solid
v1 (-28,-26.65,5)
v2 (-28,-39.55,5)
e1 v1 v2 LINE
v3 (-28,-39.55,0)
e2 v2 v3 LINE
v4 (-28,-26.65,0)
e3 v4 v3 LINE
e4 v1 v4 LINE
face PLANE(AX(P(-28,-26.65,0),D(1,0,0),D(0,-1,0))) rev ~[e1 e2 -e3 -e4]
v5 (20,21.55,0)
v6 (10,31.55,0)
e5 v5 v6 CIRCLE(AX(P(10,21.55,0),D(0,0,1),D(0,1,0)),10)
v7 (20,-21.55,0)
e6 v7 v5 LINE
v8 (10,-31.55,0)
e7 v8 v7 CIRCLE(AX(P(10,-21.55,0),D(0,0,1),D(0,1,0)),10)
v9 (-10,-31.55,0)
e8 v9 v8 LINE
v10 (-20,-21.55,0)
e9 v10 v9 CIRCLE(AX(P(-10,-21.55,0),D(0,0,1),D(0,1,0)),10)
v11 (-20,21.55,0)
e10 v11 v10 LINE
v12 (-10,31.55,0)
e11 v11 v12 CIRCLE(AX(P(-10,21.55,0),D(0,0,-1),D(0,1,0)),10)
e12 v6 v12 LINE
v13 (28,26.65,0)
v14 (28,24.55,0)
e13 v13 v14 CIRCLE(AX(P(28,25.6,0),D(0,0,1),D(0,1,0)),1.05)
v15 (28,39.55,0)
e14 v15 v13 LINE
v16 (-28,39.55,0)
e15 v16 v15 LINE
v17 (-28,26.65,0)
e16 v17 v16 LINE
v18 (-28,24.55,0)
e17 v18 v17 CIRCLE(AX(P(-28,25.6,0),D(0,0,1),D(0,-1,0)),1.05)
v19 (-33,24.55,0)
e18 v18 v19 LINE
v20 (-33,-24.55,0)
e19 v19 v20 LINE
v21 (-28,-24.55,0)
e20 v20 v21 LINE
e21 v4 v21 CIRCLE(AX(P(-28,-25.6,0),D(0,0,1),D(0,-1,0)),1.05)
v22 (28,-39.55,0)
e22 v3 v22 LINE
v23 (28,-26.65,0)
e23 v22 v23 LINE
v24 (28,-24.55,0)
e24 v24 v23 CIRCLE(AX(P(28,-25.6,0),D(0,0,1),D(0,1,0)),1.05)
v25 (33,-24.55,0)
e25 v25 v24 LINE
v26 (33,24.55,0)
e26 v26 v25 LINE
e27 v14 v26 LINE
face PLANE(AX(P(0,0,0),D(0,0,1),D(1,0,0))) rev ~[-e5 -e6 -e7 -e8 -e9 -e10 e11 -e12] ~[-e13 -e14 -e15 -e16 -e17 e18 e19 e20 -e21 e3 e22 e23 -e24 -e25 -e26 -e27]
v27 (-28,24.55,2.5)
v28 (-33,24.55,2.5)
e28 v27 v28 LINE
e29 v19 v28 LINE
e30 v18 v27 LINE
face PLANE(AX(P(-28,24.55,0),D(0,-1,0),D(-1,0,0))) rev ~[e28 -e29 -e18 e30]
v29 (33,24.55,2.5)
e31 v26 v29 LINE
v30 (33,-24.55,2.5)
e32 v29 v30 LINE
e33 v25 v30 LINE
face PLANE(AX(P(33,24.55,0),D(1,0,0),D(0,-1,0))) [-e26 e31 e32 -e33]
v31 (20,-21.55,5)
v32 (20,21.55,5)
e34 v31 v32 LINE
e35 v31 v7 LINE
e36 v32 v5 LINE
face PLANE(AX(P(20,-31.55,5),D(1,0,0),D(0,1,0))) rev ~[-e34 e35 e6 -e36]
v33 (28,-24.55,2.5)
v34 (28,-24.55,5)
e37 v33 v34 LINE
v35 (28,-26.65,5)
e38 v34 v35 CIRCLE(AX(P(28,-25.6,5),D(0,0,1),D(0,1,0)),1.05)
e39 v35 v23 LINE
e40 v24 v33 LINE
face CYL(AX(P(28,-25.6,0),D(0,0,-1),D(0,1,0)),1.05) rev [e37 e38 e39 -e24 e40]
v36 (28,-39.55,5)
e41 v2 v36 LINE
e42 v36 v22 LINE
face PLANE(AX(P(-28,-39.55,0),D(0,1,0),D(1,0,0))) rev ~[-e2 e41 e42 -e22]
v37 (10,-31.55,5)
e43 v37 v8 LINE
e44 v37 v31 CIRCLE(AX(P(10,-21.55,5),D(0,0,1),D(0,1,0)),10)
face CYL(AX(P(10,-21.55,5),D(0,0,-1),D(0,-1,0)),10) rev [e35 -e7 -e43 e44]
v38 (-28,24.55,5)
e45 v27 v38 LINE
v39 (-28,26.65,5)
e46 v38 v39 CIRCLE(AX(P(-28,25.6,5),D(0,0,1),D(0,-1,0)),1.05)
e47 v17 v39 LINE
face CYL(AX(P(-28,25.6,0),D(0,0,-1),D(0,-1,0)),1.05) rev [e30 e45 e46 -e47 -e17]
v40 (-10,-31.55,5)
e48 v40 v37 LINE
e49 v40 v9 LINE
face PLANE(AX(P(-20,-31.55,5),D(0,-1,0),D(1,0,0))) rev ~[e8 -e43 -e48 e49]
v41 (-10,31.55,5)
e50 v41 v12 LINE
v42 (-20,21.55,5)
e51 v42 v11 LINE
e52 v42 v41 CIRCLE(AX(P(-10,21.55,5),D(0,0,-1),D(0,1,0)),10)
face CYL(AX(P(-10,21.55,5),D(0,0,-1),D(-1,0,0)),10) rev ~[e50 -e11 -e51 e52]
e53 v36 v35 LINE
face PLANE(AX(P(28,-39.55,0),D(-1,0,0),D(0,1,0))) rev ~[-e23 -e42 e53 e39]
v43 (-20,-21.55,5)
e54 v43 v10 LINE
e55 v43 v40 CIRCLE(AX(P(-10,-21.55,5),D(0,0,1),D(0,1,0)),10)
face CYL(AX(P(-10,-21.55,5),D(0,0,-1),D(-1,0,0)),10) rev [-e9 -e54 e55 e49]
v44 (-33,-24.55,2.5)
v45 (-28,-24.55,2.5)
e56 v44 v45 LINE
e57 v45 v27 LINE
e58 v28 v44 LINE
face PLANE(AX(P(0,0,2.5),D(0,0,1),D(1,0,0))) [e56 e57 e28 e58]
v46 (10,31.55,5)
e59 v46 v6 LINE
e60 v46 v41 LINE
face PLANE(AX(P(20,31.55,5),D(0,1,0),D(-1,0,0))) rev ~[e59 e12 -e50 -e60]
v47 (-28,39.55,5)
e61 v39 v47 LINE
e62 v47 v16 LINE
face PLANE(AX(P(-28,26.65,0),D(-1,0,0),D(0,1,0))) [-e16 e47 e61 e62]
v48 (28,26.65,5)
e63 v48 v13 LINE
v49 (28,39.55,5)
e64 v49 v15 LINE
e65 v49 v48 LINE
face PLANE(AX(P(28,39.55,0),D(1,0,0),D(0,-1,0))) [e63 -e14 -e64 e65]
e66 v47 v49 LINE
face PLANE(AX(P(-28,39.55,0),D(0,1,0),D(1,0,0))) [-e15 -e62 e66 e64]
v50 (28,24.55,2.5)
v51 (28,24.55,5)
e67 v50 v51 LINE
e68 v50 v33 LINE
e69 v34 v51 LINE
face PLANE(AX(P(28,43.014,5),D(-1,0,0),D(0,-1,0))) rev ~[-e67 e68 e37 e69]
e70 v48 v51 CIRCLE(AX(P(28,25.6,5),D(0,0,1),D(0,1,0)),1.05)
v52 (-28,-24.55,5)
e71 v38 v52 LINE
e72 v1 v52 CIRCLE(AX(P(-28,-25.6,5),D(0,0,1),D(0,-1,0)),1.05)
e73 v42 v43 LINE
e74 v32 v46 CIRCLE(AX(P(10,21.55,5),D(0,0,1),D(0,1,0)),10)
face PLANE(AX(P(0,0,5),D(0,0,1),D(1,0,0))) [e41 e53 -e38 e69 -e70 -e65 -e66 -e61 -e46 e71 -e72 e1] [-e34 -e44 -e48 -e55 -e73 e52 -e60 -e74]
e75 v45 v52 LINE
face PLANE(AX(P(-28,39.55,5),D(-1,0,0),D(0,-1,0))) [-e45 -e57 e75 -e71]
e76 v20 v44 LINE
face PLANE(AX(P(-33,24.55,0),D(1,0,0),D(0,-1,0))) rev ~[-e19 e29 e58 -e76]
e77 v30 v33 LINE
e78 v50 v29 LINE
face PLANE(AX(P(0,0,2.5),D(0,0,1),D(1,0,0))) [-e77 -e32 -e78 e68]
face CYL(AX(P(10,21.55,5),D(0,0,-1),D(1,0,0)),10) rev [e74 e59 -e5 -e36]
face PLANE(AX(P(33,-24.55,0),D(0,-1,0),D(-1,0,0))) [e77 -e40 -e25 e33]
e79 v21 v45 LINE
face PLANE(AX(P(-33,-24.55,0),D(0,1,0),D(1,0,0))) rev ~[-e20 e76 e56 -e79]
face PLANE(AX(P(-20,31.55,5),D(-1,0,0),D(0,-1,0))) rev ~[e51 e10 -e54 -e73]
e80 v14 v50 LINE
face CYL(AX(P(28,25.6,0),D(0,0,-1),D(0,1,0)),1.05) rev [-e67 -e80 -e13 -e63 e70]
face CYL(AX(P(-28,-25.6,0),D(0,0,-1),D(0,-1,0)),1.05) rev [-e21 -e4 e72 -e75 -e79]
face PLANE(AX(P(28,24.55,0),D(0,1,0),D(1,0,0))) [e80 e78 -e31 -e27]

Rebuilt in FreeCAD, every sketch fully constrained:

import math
import FreeCAD as App
import Part
import Sketcher

V = App.Vector
Q = App.Units.Quantity


def edges_at(feature, points):
    """Names of the edges that pass closest to the given points."""
    edges = feature.Shape.Edges
    near = lambda p: min(range(len(edges)), key=lambda i: edges[i].distToShape(Part.Vertex(*p))[0])
    return sorted({f"Edge{near(p) + 1}" for p in points})


def add_polygon(sketch, points):
    """Adds a closed chain of lines whose ends are joined by coincident constraints."""
    first, n = sketch.GeometryCount, len(points)
    for a, b in zip(points, points[1:] + points[:1]):
        sketch.addGeometry(Part.LineSegment(App.Vector(*a, 0), App.Vector(*b, 0)), False)
    for i in range(n):
        sketch.addConstraint(Sketcher.Constraint("Coincident", first + i, 2, first + (i + 1) % n, 1))

doc = App.newDocument("Part")
body = doc.addObject("PartDesign::Body", "Body")

sketch1 = body.newObject("Sketcher::SketchObject", "Sketch")
sketch1.AttachmentSupport = (doc.getObject("XY_Plane"), [""])
sketch1.MapMode = "FlatFace"
sketch1.addGeometry([
    Part.LineSegment(V(-28, 39.5, 0), V(-28, 26.6, 0)),
    Part.ArcOfCircle(Part.Circle(V(-28, 25.6, 0), V(0, 0, 1), 1.1), math.radians(-90), math.radians(90)),
    Part.LineSegment(V(-28, 24.6, 0), V(-33, 24.6, 0)),
    Part.LineSegment(V(-33, 24.6, 0), V(-33, -24.6, 0)),
    Part.LineSegment(V(-33, -24.6, 0), V(-28, -24.6, 0)),
    Part.ArcOfCircle(Part.Circle(V(-28, -25.6, 0), V(0, 0, 1), 1), math.radians(-90), math.radians(90)),
    Part.LineSegment(V(-28, -26.6, 0), V(-28, -39.5, 0)),
    Part.LineSegment(V(-28, -39.5, 0), V(28, -39.5, 0)),
    Part.LineSegment(V(28, -39.5, 0), V(28, -26.6, 0)),
    Part.ArcOfCircle(Part.Circle(V(28, -25.6, 0), V(0, 0, 1), 1.1), math.radians(90), math.radians(270)),
    Part.LineSegment(V(28, -24.6, 0), V(33, -24.6, 0)),
    Part.LineSegment(V(33, -24.6, 0), V(33, 24.6, 0)),
    Part.LineSegment(V(33, 24.6, 0), V(28, 24.6, 0)),
    Part.ArcOfCircle(Part.Circle(V(28, 25.6, 0), V(0, 0, 1), 1), math.radians(90), math.radians(270)),
    Part.LineSegment(V(28, 26.6, 0), V(28, 39.5, 0)),
    Part.LineSegment(V(28, 39.5, 0), V(-28, 39.5, 0)),
], False)
sketch1.addConstraint([
    Sketcher.Constraint("Coincident", 0, 2, 1, 2),
    Sketcher.Constraint("Tangent", 1, 1, 2, 1),
    Sketcher.Constraint("Coincident", 2, 2, 3, 1),
    Sketcher.Constraint("Coincident", 3, 2, 4, 1),
    Sketcher.Constraint("Tangent", 4, 2, 5, 2),
    Sketcher.Constraint("Coincident", 5, 1, 6, 1),
    Sketcher.Constraint("Coincident", 6, 2, 7, 1),
    Sketcher.Constraint("Coincident", 7, 2, 8, 1),
    Sketcher.Constraint("Coincident", 8, 2, 9, 2),
    Sketcher.Constraint("Tangent", 9, 1, 10, 1),
    Sketcher.Constraint("Coincident", 10, 2, 11, 1),
    Sketcher.Constraint("Coincident", 11, 2, 12, 1),
    Sketcher.Constraint("Tangent", 12, 2, 13, 2),
    Sketcher.Constraint("Coincident", 13, 1, 14, 1),
    Sketcher.Constraint("Coincident", 14, 2, 15, 1),
    Sketcher.Constraint("Coincident", 15, 2, 0, 1),
    Sketcher.Constraint("Vertical", 0),
    Sketcher.Constraint("Horizontal", 2),
    Sketcher.Constraint("Vertical", 3),
    Sketcher.Constraint("Horizontal", 4),
    Sketcher.Constraint("Vertical", 6),
    Sketcher.Constraint("Horizontal", 7),
    Sketcher.Constraint("Vertical", 8),
    Sketcher.Constraint("Horizontal", 10),
    Sketcher.Constraint("Vertical", 11),
    Sketcher.Constraint("Horizontal", 12),
    Sketcher.Constraint("Vertical", 14),
    Sketcher.Constraint("Horizontal", 15),
    Sketcher.Constraint("Equal", 1, 5),
    Sketcher.Constraint("Equal", 5, 9),
    Sketcher.Constraint("Equal", 9, 13),
    Sketcher.Constraint("Symmetric", 1, 3, 9, 3, -1, 1),
    Sketcher.Constraint("Symmetric", 5, 3, 13, 3, -1, 1),
    Sketcher.Constraint("Symmetric", 6, 2, 14, 2, -1, 1),
    Sketcher.Constraint("Symmetric", 5, 3, 9, 3, -2),
    Sketcher.Constraint("Vertical", 5, 3, 0, 2),
    Sketcher.Constraint("Vertical", 4, 2, 5, 1),
    Sketcher.Constraint("Vertical", 13, 3, 7, 2),
    Sketcher.Constraint("Equal", 4, 10),
    Sketcher.Constraint("DistanceX", 2, 2, 2, 1, Q("5 mm")),
    Sketcher.Constraint("DistanceX", 7, 1, 7, 2, Q("56 mm")),
    Sketcher.Constraint("Radius", 1, Q("1.05 mm")),
    Sketcher.Constraint("DistanceY", 6, 2, 4, 2, Q("15 mm")),
    Sketcher.Constraint("DistanceY", 3, 2, 3, 1, Q("49.1 mm")),
])
pad1 = body.newObject("PartDesign::Pad", "Pad")
pad1.Profile = sketch1
pad1.Length = 5

sketch2 = body.newObject("Sketcher::SketchObject", "Sketch001")
sketch2.AttachmentSupport = (doc.getObject("XY_Plane"), [""])
sketch2.MapMode = "FlatFace"
sketch2.AttachmentOffset = App.Placement(V(0, 0, 5), App.Rotation())
add_polygon(sketch2, [(28, 43), (28, -43), (68, -43), (68, 43)])
add_polygon(sketch2, [(-28, -43), (-28, 43), (-68, 43), (-68, -43)])
sketch2.addConstraint([
    Sketcher.Constraint("Vertical", 0),
    Sketcher.Constraint("Horizontal", 1),
    Sketcher.Constraint("Vertical", 2),
    Sketcher.Constraint("Horizontal", 3),
    Sketcher.Constraint("Vertical", 4),
    Sketcher.Constraint("Horizontal", 5),
    Sketcher.Constraint("Vertical", 6),
    Sketcher.Constraint("Horizontal", 7),
    Sketcher.Constraint("Symmetric", 0, 2, 4, 2, -1, 1),
    Sketcher.Constraint("Symmetric", 2, 2, 6, 2, -1, 1),
    Sketcher.Constraint("Horizontal", 3, 2, 4, 2),
    Sketcher.Constraint("DistanceX", -1, 1, 0, 2, Q("28 mm")),
    Sketcher.Constraint("DistanceY", 0, 2, 0, 1, Q("86.028 mm")),
    Sketcher.Constraint("DistanceX", 1, 1, 1, 2, Q("39.7785 mm")),
])
pocket1 = body.newObject("PartDesign::Pocket", "Pocket")
pocket1.Profile = sketch2
pocket1.Length = 2.5

sketch3 = body.newObject("Sketcher::SketchObject", "Sketch002")
sketch3.AttachmentSupport = (doc.getObject("XY_Plane"), [""])
sketch3.MapMode = "FlatFace"
sketch3.AttachmentOffset = App.Placement(V(0, 0, 5), App.Rotation())
add_polygon(sketch3, [(-20, 32), (-20, -32), (20, -32), (20, 32)])
sketch3.addConstraint([
    Sketcher.Constraint("Vertical", 0),
    Sketcher.Constraint("Horizontal", 1),
    Sketcher.Constraint("Vertical", 2),
    Sketcher.Constraint("Horizontal", 3),
    Sketcher.Constraint("Symmetric", 0, 2, 2, 2, -1, 1),
    Sketcher.Constraint("DistanceX", 1, 1, 1, 2, Q("40 mm")),
    Sketcher.Constraint("DistanceY", 0, 2, 0, 1, Q("63.1 mm")),
])
pocket2 = body.newObject("PartDesign::Pocket", "Pocket001")
pocket2.Profile = sketch3
pocket2.Length = 10
doc.recompute()

fillet = body.newObject("PartDesign::Fillet", "Fillet")
fillet.Base = (pocket2, edges_at(pocket2, [
    (-20, 31.55, 2.5),
    (20, 31.55, 2.5),
    (20, -31.55, 2.5),
    (-20, -31.55, 2.5),
]))
fillet.Radius = 10

doc.recompute()
